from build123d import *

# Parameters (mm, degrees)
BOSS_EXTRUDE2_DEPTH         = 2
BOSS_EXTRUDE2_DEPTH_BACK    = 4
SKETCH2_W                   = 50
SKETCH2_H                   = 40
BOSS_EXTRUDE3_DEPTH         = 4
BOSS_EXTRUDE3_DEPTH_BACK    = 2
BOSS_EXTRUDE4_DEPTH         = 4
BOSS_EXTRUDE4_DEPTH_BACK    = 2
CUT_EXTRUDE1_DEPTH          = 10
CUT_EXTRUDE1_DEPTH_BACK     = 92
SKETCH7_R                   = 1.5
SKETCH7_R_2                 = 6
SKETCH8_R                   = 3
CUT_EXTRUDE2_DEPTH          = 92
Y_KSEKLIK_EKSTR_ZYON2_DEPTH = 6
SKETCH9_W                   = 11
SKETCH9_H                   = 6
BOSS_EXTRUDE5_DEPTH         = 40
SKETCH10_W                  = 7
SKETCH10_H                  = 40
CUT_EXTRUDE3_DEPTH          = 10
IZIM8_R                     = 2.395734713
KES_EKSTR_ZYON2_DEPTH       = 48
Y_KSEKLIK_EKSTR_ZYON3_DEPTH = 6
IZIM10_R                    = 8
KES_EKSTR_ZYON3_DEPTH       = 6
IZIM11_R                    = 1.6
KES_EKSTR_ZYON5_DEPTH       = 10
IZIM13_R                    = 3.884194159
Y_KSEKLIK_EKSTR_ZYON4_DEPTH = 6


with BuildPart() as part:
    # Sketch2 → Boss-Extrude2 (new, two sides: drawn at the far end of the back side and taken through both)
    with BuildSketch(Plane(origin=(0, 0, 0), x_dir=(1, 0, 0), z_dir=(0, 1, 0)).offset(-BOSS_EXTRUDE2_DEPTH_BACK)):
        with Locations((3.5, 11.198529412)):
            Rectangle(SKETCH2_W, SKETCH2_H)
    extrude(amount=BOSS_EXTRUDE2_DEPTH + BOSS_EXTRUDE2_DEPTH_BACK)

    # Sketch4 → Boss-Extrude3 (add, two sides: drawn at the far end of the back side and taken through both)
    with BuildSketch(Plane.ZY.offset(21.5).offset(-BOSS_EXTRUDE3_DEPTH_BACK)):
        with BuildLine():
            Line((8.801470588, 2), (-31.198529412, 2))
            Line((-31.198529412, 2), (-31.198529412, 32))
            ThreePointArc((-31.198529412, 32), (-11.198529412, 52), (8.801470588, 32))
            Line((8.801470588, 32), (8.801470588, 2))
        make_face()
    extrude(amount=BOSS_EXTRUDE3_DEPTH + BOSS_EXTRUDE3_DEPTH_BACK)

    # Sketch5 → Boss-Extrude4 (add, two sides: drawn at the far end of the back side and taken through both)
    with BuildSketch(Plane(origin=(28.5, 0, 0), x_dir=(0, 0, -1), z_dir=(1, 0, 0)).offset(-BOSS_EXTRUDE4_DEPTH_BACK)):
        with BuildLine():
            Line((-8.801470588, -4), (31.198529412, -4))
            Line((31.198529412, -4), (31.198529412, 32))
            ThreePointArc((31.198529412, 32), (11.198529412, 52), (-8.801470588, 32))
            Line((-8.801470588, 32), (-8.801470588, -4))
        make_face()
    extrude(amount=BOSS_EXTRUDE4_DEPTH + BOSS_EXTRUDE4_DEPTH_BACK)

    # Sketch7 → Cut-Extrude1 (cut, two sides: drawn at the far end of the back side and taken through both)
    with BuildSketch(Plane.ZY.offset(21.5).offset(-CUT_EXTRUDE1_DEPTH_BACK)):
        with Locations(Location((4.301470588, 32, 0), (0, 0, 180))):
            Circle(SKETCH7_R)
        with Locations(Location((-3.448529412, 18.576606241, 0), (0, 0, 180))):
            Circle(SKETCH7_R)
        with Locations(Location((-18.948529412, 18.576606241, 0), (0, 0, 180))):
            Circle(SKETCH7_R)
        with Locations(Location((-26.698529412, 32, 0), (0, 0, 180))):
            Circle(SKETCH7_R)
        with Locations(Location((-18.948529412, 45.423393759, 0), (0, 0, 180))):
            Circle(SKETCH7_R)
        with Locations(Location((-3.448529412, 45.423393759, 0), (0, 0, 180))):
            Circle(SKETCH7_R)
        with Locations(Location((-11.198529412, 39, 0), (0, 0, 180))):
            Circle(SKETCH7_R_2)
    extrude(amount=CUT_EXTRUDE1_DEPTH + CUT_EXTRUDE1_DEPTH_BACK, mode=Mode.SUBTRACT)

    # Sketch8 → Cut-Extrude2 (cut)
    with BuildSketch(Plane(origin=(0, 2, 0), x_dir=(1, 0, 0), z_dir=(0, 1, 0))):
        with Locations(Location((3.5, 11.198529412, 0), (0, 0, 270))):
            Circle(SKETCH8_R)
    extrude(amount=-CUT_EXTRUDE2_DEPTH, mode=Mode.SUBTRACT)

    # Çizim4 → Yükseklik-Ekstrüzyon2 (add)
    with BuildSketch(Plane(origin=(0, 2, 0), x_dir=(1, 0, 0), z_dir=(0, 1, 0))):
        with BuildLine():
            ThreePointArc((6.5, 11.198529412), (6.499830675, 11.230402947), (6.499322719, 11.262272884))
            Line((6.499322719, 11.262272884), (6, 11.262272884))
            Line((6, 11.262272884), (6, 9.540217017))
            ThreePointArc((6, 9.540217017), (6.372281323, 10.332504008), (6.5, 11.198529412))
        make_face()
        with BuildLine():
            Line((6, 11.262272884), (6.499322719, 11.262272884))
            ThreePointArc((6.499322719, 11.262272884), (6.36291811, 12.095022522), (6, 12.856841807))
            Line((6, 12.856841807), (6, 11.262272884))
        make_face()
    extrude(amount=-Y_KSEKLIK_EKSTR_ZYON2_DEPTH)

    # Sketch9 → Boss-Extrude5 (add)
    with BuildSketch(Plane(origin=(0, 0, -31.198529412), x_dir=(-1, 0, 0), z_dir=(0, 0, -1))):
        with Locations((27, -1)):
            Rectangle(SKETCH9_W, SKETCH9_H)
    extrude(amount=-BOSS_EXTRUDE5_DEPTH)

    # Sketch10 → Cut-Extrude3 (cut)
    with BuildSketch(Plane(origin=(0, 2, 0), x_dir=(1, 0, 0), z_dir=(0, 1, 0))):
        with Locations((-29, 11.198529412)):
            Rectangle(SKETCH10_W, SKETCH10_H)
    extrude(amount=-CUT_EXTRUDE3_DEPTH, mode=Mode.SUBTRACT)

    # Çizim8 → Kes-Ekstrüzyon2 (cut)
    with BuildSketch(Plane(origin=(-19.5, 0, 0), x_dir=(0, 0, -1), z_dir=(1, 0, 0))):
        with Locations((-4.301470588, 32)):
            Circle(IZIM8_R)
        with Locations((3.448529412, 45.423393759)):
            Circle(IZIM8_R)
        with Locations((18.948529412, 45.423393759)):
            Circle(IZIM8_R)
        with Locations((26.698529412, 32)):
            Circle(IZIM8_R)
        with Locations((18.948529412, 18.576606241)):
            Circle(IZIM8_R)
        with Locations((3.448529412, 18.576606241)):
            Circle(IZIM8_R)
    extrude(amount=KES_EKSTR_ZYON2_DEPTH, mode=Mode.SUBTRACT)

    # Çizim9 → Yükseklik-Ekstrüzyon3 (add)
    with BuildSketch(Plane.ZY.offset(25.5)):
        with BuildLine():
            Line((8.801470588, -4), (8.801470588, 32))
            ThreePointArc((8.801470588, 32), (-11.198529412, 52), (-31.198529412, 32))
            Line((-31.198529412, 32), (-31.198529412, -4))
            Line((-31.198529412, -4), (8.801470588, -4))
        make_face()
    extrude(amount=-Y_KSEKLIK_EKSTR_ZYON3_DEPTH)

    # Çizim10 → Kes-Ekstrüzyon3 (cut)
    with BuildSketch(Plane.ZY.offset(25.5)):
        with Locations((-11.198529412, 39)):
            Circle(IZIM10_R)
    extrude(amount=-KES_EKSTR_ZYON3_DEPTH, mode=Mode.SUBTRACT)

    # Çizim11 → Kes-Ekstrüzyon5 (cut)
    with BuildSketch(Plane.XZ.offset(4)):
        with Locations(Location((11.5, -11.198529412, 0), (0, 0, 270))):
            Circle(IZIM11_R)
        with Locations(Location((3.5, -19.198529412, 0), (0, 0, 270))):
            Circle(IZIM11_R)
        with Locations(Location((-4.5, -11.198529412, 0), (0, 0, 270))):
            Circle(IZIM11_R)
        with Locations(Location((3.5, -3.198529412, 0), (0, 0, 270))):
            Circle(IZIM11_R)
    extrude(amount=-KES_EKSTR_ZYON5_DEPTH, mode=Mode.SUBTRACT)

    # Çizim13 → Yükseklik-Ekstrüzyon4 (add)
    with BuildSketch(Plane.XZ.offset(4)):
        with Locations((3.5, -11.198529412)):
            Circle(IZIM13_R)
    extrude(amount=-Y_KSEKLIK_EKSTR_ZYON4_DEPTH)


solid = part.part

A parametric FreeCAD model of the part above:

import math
import FreeCAD as App
import Part
import Sketcher
from FreeCAD import Vector


def add_polygon(sketch, points):
    """Adds a closed chain of lines whose ends are joined by coincident constraints."""
    first, n = sketch.GeometryCount, len(points)
    for a, b in zip(points, points[1:] + points[:1]):
        sketch.addGeometry(Part.LineSegment(App.Vector(*a, 0), App.Vector(*b, 0)), False)
    for i in range(n):
        sketch.addConstraint(Sketcher.Constraint("Coincident", first + i, 2, first + (i + 1) % n, 1))

doc = App.newDocument("Part")
params = doc.addObject("Spreadsheet::Sheet", "Params")
for row, (alias, value) in enumerate([
    ("sketch1_width", "50 mm"),
    ("sketch1_height", "40 mm"),
    ("pad1_length", "2 mm"),
    ("pad1_length2", "4 mm"),
    ("sketch2_radius", "20 mm"),
    ("sketch2_width", "30 mm"),
    ("pad2_length", "4 mm"),
    ("pad2_length2", "2 mm"),
    ("sketch3_radius", "20 mm"),
    ("sketch3_width", "36 mm"),
    ("pad3_length", "4 mm"),
    ("pad3_length2", "2 mm"),
    ("sketch4_diameter", "3 mm"),
    ("sketch4_diameter2", "12 mm"),
    ("sketch5_diameter", "6 mm"),
    ("pocket2_length", "92 mm"),
    ("sketch6_radius", "3 mm"),
    ("pad4_length", "6 mm"),
    ("sketch7_width", "11 mm"),
    ("sketch7_height", "6 mm"),
    ("pad5_length", "40 mm"),
    ("sketch8_width", "7 mm"),
    ("sketch8_height", "40 mm"),
    ("pocket3_length", "10 mm"),
    ("pocket4_length", "48 mm"),
    ("sketch10_radius", "20 mm"),
    ("sketch10_width", "36 mm"),
    ("pad6_length", "6 mm"),
    ("sketch11_diameter", "16 mm"),
    ("pocket5_length", "6 mm"),
    ("sketch12_diameter", "3.2 mm"),
    ("pocket6_length", "10 mm"),
    ("pad7_length", "6 mm"),
], start=1):
    params.set(f"A{row}", alias)
    params.set(f"B{row}", "=" + value)
    params.setAlias(f"B{row}", alias)

body = doc.addObject("PartDesign::Body", "Body")

sketch1 = doc.addObject("Sketcher::SketchObject", "Sketch")
body.addObject(sketch1)
sketch1.AttachmentSupport = (doc.XZ_Plane, [""])
sketch1.MapMode = "FlatFace"
add_polygon(sketch1, [(-22, -31), (-22, 9), (28, 9), (28, -31)])
sketch1.addConstraint([
    Sketcher.Constraint("Vertical", 0),
    Sketcher.Constraint("Horizontal", 1),
    Sketcher.Constraint("Vertical", 2),
    Sketcher.Constraint("Horizontal", 3),
    Sketcher.Constraint("DistanceX", 1, 1, 1, 2, 50.0),
    Sketcher.Constraint("DistanceY", 0, 1, 0, 2, 40.0),
    Sketcher.Constraint("DistanceX", 0, 2, -1, 1, 21.5),
    Sketcher.Constraint("DistanceY", -1, 1, 0, 2, 8.801471),
])
sketch1.setExpression("Constraints[8]", "Params.sketch1_width")
sketch1.setExpression("Constraints[9]", "Params.sketch1_height")
pad1 = doc.addObject("PartDesign::Pad", "Pad")
body.addObject(pad1)
pad1.Profile = sketch1
pad1.Type = "TwoLengths"
pad1.setExpression("Length", "Params.pad1_length")
pad1.setExpression("Length2", "Params.pad1_length2")
pad1.Reversed = True

sketch2 = doc.addObject("Sketcher::SketchObject", "Sketch001")
body.addObject(sketch2)
sketch2.AttachmentSupport = (doc.YZ_Plane, [""])
sketch2.MapMode = "FlatFace"
sketch2.AttachmentOffset = App.Placement(Vector(0, 0, -21.5), App.Rotation())
sketch2.addGeometry([
    Part.LineSegment(Vector(2, -31, 0), Vector(2, 9, 0)),
    Part.LineSegment(Vector(2, 9, 0), Vector(32, 9, 0)),
    Part.ArcOfCircle(Part.Circle(Vector(32, -11, 0), Vector(0, 0, 1), 20), math.radians(-90), math.radians(90)),
    Part.LineSegment(Vector(32, -31, 0), Vector(2, -31, 0)),
], False)
sketch2.addConstraint([
    Sketcher.Constraint("Coincident", 0, 2, 1, 1),
    Sketcher.Constraint("Tangent", 1, 2, 2, 2),
    Sketcher.Constraint("Tangent", 2, 1, 3, 1),
    Sketcher.Constraint("Coincident", 3, 2, 0, 1),
    Sketcher.Constraint("Vertical", 0),
    Sketcher.Constraint("Horizontal", 1),
    Sketcher.Constraint("Horizontal", 3),
    Sketcher.Constraint("Radius", 2, 20.0),
    Sketcher.Constraint("DistanceX", 1, 1, 1, 2, 30.0),
    Sketcher.Constraint("DistanceX", -1, 1, 2, 3, 32.0),
    Sketcher.Constraint("DistanceY", 2, 3, -1, 1, 11.198529),
])
sketch2.setExpression("Constraints[7]", "Params.sketch2_radius")
sketch2.setExpression("Constraints[8]", "Params.sketch2_width")
pad2 = doc.addObject("PartDesign::Pad", "Pad001")
body.addObject(pad2)
pad2.Profile = sketch2
pad2.Type = "TwoLengths"
pad2.setExpression("Length", "Params.pad2_length")
pad2.setExpression("Length2", "Params.pad2_length2")
pad2.Reversed = True

sketch3 = doc.addObject("Sketcher::SketchObject", "Sketch002")
body.addObject(sketch3)
sketch3.AttachmentSupport = (doc.YZ_Plane, [""])
sketch3.MapMode = "FlatFace"
sketch3.AttachmentOffset = App.Placement(Vector(0, 0, 28.5), App.Rotation())
sketch3.addGeometry([
    Part.LineSegment(Vector(-4, 9, 0), Vector(-4, -31, 0)),
    Part.LineSegment(Vector(-4, -31, 0), Vector(32, -31, 0)),
    Part.ArcOfCircle(Part.Circle(Vector(32, -11, 0), Vector(0, 0, 1), 20), math.radians(-90), math.radians(90)),
    Part.LineSegment(Vector(32, 9, 0), Vector(-4, 9, 0)),
], False)
sketch3.addConstraint([
    Sketcher.Constraint("Coincident", 0, 2, 1, 1),
    Sketcher.Constraint("Tangent", 1, 2, 2, 1),
    Sketcher.Constraint("Tangent", 2, 2, 3, 1),
    Sketcher.Constraint("Coincident", 3, 2, 0, 1),
    Sketcher.Constraint("Vertical", 0),
    Sketcher.Constraint("Horizontal", 1),
    Sketcher.Constraint("Horizontal", 3),
    Sketcher.Constraint("Radius", 2, 20.0),
    Sketcher.Constraint("DistanceX", 1, 1, 1, 2, 36.0),
    Sketcher.Constraint("DistanceX", -1, 1, 2, 3, 32.0),
    Sketcher.Constraint("DistanceY", 2, 3, -1, 1, 11.198529),
])
sketch3.setExpression("Constraints[7]", "Params.sketch3_radius")
sketch3.setExpression("Constraints[8]", "Params.sketch3_width")
pad3 = doc.addObject("PartDesign::Pad", "Pad002")
body.addObject(pad3)
pad3.Profile = sketch3
pad3.Type = "TwoLengths"
pad3.setExpression("Length", "Params.pad3_length")
pad3.setExpression("Length2", "Params.pad3_length2")

sketch4 = doc.addObject("Sketcher::SketchObject", "Sketch003")
body.addObject(sketch4)
sketch4.AttachmentSupport = (doc.YZ_Plane, [""])
sketch4.MapMode = "FlatFace"
sketch4.AttachmentOffset = App.Placement(Vector(0, 0, -21.5), App.Rotation())
sketch4.addGeometry([
    Part.Circle(Vector(32, 4.3, 0), Vector(0, 0, 1), 1.5),
    Part.Circle(Vector(18.6, -3.4, 0), Vector(0, 0, 1), 1.5),
    Part.Circle(Vector(18.6, -18.9, 0), Vector(0, 0, 1), 1.5),
    Part.Circle(Vector(32, -26.7, 0), Vector(0, 0, 1), 1.5),
    Part.Circle(Vector(45.4, -18.9, 0), Vector(0, 0, 1), 1.5),
    Part.Circle(Vector(45.4, -3.4, 0), Vector(0, 0, 1), 1.5),
    Part.Circle(Vector(39, -11.2, 0), Vector(0, 0, 1), 6),
], False)
sketch4.addConstraint([
    Sketcher.Constraint("Equal", 0, 1),
    Sketcher.Constraint("Equal", 1, 2),
    Sketcher.Constraint("Equal", 2, 3),
    Sketcher.Constraint("Equal", 3, 4),
    Sketcher.Constraint("Equal", 4, 5),
    Sketcher.Constraint("Horizontal", 2, 3, 4, 3),
    Sketcher.Constraint("Horizontal", 1, 3, 5, 3),
    Sketcher.Constraint("Vertical", 1, 3, 2, 3),
    Sketcher.Constraint("Vertical", 0, 3, 3, 3),
    Sketcher.Constraint("Vertical", 4, 3, 5, 3),
    Sketcher.Constraint("Diameter", 0, 3.0),
    Sketcher.Constraint("Diameter", 6, 12.0),
    Sketcher.Constraint("DistanceX", -1, 1, 0, 3, 32.0),
    Sketcher.Constraint("DistanceX", -1, 1, 6, 3, 39.0),
    Sketcher.Constraint("DistanceY", 3, 3, 0, 3, 31.0),
    Sketcher.Constraint("DistanceY", 2, 3, 1, 3, 15.5),
    Sketcher.Constraint("DistanceY", 6, 3, 0, 3, 15.5),
    Sketcher.Constraint("DistanceY", 1, 3, 0, 3, 7.75),
    Sketcher.Constraint("DistanceY", -1, 1, 0, 3, 4.301471),
    Sketcher.Constraint("DistanceX", -1, 1, 1, 3, 18.576606),
    Sketcher.Constraint("DistanceX", -1, 1, 4, 3, 45.423394),
])
sketch4.setExpression("Constraints[10]", "Params.sketch4_diameter")
sketch4.setExpression("Constraints[11]", "Params.sketch4_diameter2")
pocket1 = doc.addObject("PartDesign::Pocket", "Pocket")
body.addObject(pocket1)
pocket1.Profile = sketch4
pocket1.Type = "ThroughAll"
pocket1.Midplane = True

sketch5 = doc.addObject("Sketcher::SketchObject", "Sketch004")
body.addObject(sketch5)
sketch5.AttachmentSupport = (doc.XZ_Plane, [""])
sketch5.MapMode = "FlatFace"
sketch5.AttachmentOffset = App.Placement(Vector(0, 0, -2), App.Rotation())
sketch5.addGeometry(Part.Circle(Vector(3.5, -11.2, 0), Vector(0, 0, 1), 3), False)
sketch5.addConstraint([
    Sketcher.Constraint("Diameter", 0, 6.0),
    Sketcher.Constraint("DistanceX", -1, 1, 0, 3, 3.5),
    Sketcher.Constraint("DistanceY", 0, 3, -1, 1, 11.198529),
])
sketch5.setExpression("Constraints[0]", "Params.sketch5_diameter")
pocket2 = doc.addObject("PartDesign::Pocket", "Pocket001")
body.addObject(pocket2)
pocket2.Profile = sketch5
pocket2.setExpression("Length", "Params.pocket2_length")
pocket2.Reversed = True

sketch6 = doc.addObject("Sketcher::SketchObject", "Sketch005")
body.addObject(sketch6)
sketch6.AttachmentSupport = (doc.XZ_Plane, [""])
sketch6.MapMode = "FlatFace"
sketch6.AttachmentOffset = App.Placement(Vector(0, 0, -2), App.Rotation())
sketch6.addGeometry([
    Part.ArcOfCircle(Part.Circle(Vector(3.5, -11.2, 0), Vector(0, 0, 1), 3), math.radians(0), math.radians(34)),
    Part.ArcOfCircle(Part.Circle(Vector(3.5, -11.2, 0), Vector(0, 0, 1), 3), math.radians(-1.22), math.radians(0)),
    Part.ArcOfCircle(Part.Circle(Vector(3.5, -11.2, 0), Vector(0, 0, 1), 3), math.radians(-34), math.radians(-1)),
    Part.LineSegment(Vector(6, -12.86, 0), Vector(6, -9.54, 0)),
], False)
sketch6.addConstraint([
    Sketcher.Constraint("Tangent", 0, 1, 1, 2),
    Sketcher.Constraint("Tangent", 1, 1, 2, 2),
    Sketcher.Constraint("Coincident", 2, 1, 3, 1),
    Sketcher.Constraint("Coincident", 3, 2, 0, 2),
    Sketcher.Constraint("Vertical", 3),
    Sketcher.Constraint("Coincident", 2, 3, 0, 3),
    Sketcher.Constraint("Horizontal", 2, 3, 0, 1),
    Sketcher.Constraint("Radius", 0, 3.0),
    Sketcher.Constraint("DistanceX", -1, 1, 2, 1, 6.0),
    Sketcher.Constraint("DistanceX", -1, 1, 0, 3, 3.5),
    Sketcher.Constraint("DistanceY", 0, 3, -1, 1, 11.198529),
    Sketcher.Constraint("DistanceY", 2, 1, 1, 1, 1.594569),
])
sketch6.setExpression("Constraints[7]", "Params.sketch6_radius")
pad4 = doc.addObject("PartDesign::Pad", "Pad003")
body.addObject(pad4)
pad4.Profile = sketch6
pad4.setExpression("Length", "Params.pad4_length")

sketch7 = doc.addObject("Sketcher::SketchObject", "Sketch006")
body.addObject(sketch7)
sketch7.AttachmentSupport = (doc.XY_Plane, [""])
sketch7.MapMode = "FlatFace"
sketch7.AttachmentOffset = App.Placement(Vector(0, 0, -31.198529), App.Rotation())
add_polygon(sketch7, [(-22, 2), (-22, -4), (-32, -4), (-32, 2)])
sketch7.addConstraint([
    Sketcher.Constraint("Vertical", 0),
    Sketcher.Constraint("Horizontal", 1),
    Sketcher.Constraint("Vertical", 2),
    Sketcher.Constraint("Horizontal", 3),
    Sketcher.Constraint("DistanceX", 1, 2, 1, 1, 11.0),
    Sketcher.Constraint("DistanceY", 0, 2, 0, 1, 6.0),
    Sketcher.Constraint("DistanceY", 0, 2, -1, 1, 4.0),
    Sketcher.Constraint("DistanceX", 0, 2, -1, 1, 21.5),
])
sketch7.setExpression("Constraints[8]", "Params.sketch7_width")
sketch7.setExpression("Constraints[9]", "Params.sketch7_height")
pad5 = doc.addObject("PartDesign::Pad", "Pad004")
body.addObject(pad5)
pad5.Profile = sketch7
pad5.setExpression("Length", "Params.pad5_length")

sketch8 = doc.addObject("Sketcher::SketchObject", "Sketch007")
body.addObject(sketch8)
sketch8.AttachmentSupport = (doc.XZ_Plane, [""])
sketch8.MapMode = "FlatFace"
sketch8.AttachmentOffset = App.Placement(Vector(0, 0, -2), App.Rotation())
add_polygon(sketch8, [(-32, -31), (-32, 9), (-26, 9), (-26, -31)])
sketch8.addConstraint([
    Sketcher.Constraint("Vertical", 0),
    Sketcher.Constraint("Horizontal", 1),
    Sketcher.Constraint("Vertical", 2),
    Sketcher.Constraint("Horizontal", 3),
    Sketcher.Constraint("DistanceX", 1, 1, 1, 2, 7.0),
    Sketcher.Constraint("DistanceY", 0, 1, 0, 2, 40.0),
    Sketcher.Constraint("DistanceX", 0, 2, -1, 1, 32.5),
    Sketcher.Constraint("DistanceY", -1, 1, 0, 2, 8.801471),
])
sketch8.setExpression("Constraints[8]", "Params.sketch8_width")
sketch8.setExpression("Constraints[9]", "Params.sketch8_height")
pocket3 = doc.addObject("PartDesign::Pocket", "Pocket002")
body.addObject(pocket3)
pocket3.Profile = sketch8
pocket3.setExpression("Length", "Params.pocket3_length")
pocket3.Reversed = True

sketch9 = doc.addObject("Sketcher::SketchObject", "Sketch008")
body.addObject(sketch9)
sketch9.AttachmentSupport = (doc.YZ_Plane, [""])
sketch9.MapMode = "FlatFace"
sketch9.AttachmentOffset = App.Placement(Vector(0, 0, -19.5), App.Rotation())
sketch9.addGeometry([
    Part.Circle(Vector(32, 4.3, 0), Vector(0, 0, 1), 2.4),
    Part.Circle(Vector(45.4, -3.4, 0), Vector(0, 0, 1), 2.4),
    Part.Circle(Vector(45.4, -18.9, 0), Vector(0, 0, 1), 2.4),
    Part.Circle(Vector(32, -26.7, 0), Vector(0, 0, 1), 2.4),
    Part.Circle(Vector(18.6, -18.9, 0), Vector(0, 0, 1), 2.4),
    Part.Circle(Vector(18.6, -3.4, 0), Vector(0, 0, 1), 2.4),
], False)
sketch9.addConstraint([
    Sketcher.Constraint("Equal", 0, 1),
    Sketcher.Constraint("Equal", 1, 2),
    Sketcher.Constraint("Equal", 2, 3),
    Sketcher.Constraint("Equal", 3, 4),
    Sketcher.Constraint("Equal", 4, 5),
    Sketcher.Constraint("Horizontal", 2, 3, 4, 3),
    Sketcher.Constraint("Horizontal", 1, 3, 5, 3),
    Sketcher.Constraint("Vertical", 1, 3, 2, 3),
    Sketcher.Constraint("Vertical", 0, 3, 3, 3),
    Sketcher.Constraint("Vertical", 4, 3, 5, 3),
    Sketcher.Constraint("DistanceX", -1, 1, 0, 3, 32.0),
    Sketcher.Constraint("DistanceY", 3, 3, 0, 3, 31.0),
    Sketcher.Constraint("DistanceY", 2, 3, 1, 3, 15.5),
    Sketcher.Constraint("Diameter", 0, 4.791469),
    Sketcher.Constraint("DistanceY", 1, 3, 0, 3, 7.75),
    Sketcher.Constraint("DistanceY", -1, 1, 0, 3, 4.301471),
    Sketcher.Constraint("DistanceX", -1, 1, 1, 3, 45.423394),
    Sketcher.Constraint("DistanceX", -1, 1, 4, 3, 18.576606),
])
pocket4 = doc.addObject("PartDesign::Pocket", "Pocket003")
body.addObject(pocket4)
pocket4.Profile = sketch9
pocket4.setExpression("Length", "Params.pocket4_length")
pocket4.Reversed = True

sketch10 = doc.addObject("Sketcher::SketchObject", "Sketch009")
body.addObject(sketch10)
sketch10.AttachmentSupport = (doc.YZ_Plane, [""])
sketch10.MapMode = "FlatFace"
sketch10.AttachmentOffset = App.Placement(Vector(0, 0, -25.5), App.Rotation())
sketch10.addGeometry([
    Part.LineSegment(Vector(-4, 9, 0), Vector(32, 9, 0)),
    Part.ArcOfCircle(Part.Circle(Vector(32, -11, 0), Vector(0, 0, 1), 20), math.radians(-90), math.radians(90)),
    Part.LineSegment(Vector(32, -31, 0), Vector(-4, -31, 0)),
    Part.LineSegment(Vector(-4, -31, 0), Vector(-4, 9, 0)),
], False)
sketch10.addConstraint([
    Sketcher.Constraint("Tangent", 0, 2, 1, 2),
    Sketcher.Constraint("Tangent", 1, 1, 2, 1),
    Sketcher.Constraint("Coincident", 2, 2, 3, 1),
    Sketcher.Constraint("Coincident", 3, 2, 0, 1),
    Sketcher.Constraint("Horizontal", 0),
    Sketcher.Constraint("Horizontal", 2),
    Sketcher.Constraint("Vertical", 3),
    Sketcher.Constraint("Radius", 1, 20.0),
    Sketcher.Constraint("DistanceX", 0, 1, 0, 2, 36.0),
    Sketcher.Constraint("DistanceX", -1, 1, 1, 3, 32.0),
    Sketcher.Constraint("DistanceY", 1, 3, -1, 1, 11.198529),
])
sketch10.setExpression("Constraints[7]", "Params.sketch10_radius")
sketch10.setExpression("Constraints[8]", "Params.sketch10_width")
pad6 = doc.addObject("PartDesign::Pad", "Pad005")
body.addObject(pad6)
pad6.Profile = sketch10
pad6.setExpression("Length", "Params.pad6_length")

sketch11 = doc.addObject("Sketcher::SketchObject", "Sketch010")
body.addObject(sketch11)
sketch11.AttachmentSupport = (doc.YZ_Plane, [""])
sketch11.MapMode = "FlatFace"
sketch11.AttachmentOffset = App.Placement(Vector(0, 0, -25.5), App.Rotation())
sketch11.addGeometry(Part.Circle(Vector(39, -11, 0), Vector(0, 0, 1), 8), False)
sketch11.addConstraint([
    Sketcher.Constraint("Diameter", 0, 16.0),
    Sketcher.Constraint("DistanceX", -1, 1, 0, 3, 39.0),
    Sketcher.Constraint("DistanceY", 0, 3, -1, 1, 11.198529),
])
sketch11.setExpression("Constraints[0]", "Params.sketch11_diameter")
pocket5 = doc.addObject("PartDesign::Pocket", "Pocket004")
body.addObject(pocket5)
pocket5.Profile = sketch11
pocket5.setExpression("Length", "Params.pocket5_length")
pocket5.Reversed = True

sketch12 = doc.addObject("Sketcher::SketchObject", "Sketch011")
body.addObject(sketch12)
sketch12.AttachmentSupport = (doc.XZ_Plane, [""])
sketch12.MapMode = "FlatFace"
sketch12.AttachmentOffset = App.Placement(Vector(0, 0, 4), App.Rotation())
sketch12.addGeometry([
    Part.Circle(Vector(11.5, -11.2, 0), Vector(0, 0, 1), 1.6),
    Part.Circle(Vector(3.5, -19.2, 0), Vector(0, 0, 1), 1.6),
    Part.Circle(Vector(-4.5, -11.2, 0), Vector(0, 0, 1), 1.6),
    Part.Circle(Vector(3.5, -3.2, 0), Vector(0, 0, 1), 1.6),
], False)
sketch12.addConstraint([
    Sketcher.Constraint("Equal", 0, 1),
    Sketcher.Constraint("Equal", 1, 2),
    Sketcher.Constraint("Equal", 2, 3),
    Sketcher.Constraint("Horizontal", 0, 3, 2, 3),
    Sketcher.Constraint("Vertical", 1, 3, 3, 3),
    Sketcher.Constraint("Diameter", 0, 3.2),
    Sketcher.Constraint("DistanceX", 1, 3, 0, 3, 8.0),
    Sketcher.Constraint("DistanceY", 1, 3, 0, 3, 8.0),
    Sketcher.Constraint("DistanceX", 2, 3, 1, 3, 8.0),
    Sketcher.Constraint("DistanceY", 0, 3, 3, 3, 8.0),
    Sketcher.Constraint("DistanceX", -1, 1, 0, 3, 11.5),
    Sketcher.Constraint("DistanceY", 0, 3, -1, 1, 11.198529),
])
sketch12.setExpression("Constraints[5]", "Params.sketch12_diameter")
pocket6 = doc.addObject("PartDesign::Pocket", "Pocket005")
body.addObject(pocket6)
pocket6.Profile = sketch12
pocket6.setExpression("Length", "Params.pocket6_length")

sketch13 = doc.addObject("Sketcher::SketchObject", "Sketch012")
body.addObject(sketch13)
sketch13.AttachmentSupport = (doc.XZ_Plane, [""])
sketch13.MapMode = "FlatFace"
sketch13.AttachmentOffset = App.Placement(Vector(0, 0, 4), App.Rotation())
sketch13.addGeometry(Part.Circle(Vector(3.5, -11.2, 0), Vector(0, 0, 1), 3.9), False)
sketch13.addConstraint([
    Sketcher.Constraint("DistanceX", -1, 1, 0, 3, 3.5),
    Sketcher.Constraint("Diameter", 0, 7.768388),
    Sketcher.Constraint("DistanceY", 0, 3, -1, 1, 11.198529),
])
pad7 = doc.addObject("PartDesign::Pad", "Pad006")
body.addObject(pad7)
pad7.Profile = sketch13
pad7.setExpression("Length", "Params.pad7_length")
pad7.Reversed = True

doc.recompute()
